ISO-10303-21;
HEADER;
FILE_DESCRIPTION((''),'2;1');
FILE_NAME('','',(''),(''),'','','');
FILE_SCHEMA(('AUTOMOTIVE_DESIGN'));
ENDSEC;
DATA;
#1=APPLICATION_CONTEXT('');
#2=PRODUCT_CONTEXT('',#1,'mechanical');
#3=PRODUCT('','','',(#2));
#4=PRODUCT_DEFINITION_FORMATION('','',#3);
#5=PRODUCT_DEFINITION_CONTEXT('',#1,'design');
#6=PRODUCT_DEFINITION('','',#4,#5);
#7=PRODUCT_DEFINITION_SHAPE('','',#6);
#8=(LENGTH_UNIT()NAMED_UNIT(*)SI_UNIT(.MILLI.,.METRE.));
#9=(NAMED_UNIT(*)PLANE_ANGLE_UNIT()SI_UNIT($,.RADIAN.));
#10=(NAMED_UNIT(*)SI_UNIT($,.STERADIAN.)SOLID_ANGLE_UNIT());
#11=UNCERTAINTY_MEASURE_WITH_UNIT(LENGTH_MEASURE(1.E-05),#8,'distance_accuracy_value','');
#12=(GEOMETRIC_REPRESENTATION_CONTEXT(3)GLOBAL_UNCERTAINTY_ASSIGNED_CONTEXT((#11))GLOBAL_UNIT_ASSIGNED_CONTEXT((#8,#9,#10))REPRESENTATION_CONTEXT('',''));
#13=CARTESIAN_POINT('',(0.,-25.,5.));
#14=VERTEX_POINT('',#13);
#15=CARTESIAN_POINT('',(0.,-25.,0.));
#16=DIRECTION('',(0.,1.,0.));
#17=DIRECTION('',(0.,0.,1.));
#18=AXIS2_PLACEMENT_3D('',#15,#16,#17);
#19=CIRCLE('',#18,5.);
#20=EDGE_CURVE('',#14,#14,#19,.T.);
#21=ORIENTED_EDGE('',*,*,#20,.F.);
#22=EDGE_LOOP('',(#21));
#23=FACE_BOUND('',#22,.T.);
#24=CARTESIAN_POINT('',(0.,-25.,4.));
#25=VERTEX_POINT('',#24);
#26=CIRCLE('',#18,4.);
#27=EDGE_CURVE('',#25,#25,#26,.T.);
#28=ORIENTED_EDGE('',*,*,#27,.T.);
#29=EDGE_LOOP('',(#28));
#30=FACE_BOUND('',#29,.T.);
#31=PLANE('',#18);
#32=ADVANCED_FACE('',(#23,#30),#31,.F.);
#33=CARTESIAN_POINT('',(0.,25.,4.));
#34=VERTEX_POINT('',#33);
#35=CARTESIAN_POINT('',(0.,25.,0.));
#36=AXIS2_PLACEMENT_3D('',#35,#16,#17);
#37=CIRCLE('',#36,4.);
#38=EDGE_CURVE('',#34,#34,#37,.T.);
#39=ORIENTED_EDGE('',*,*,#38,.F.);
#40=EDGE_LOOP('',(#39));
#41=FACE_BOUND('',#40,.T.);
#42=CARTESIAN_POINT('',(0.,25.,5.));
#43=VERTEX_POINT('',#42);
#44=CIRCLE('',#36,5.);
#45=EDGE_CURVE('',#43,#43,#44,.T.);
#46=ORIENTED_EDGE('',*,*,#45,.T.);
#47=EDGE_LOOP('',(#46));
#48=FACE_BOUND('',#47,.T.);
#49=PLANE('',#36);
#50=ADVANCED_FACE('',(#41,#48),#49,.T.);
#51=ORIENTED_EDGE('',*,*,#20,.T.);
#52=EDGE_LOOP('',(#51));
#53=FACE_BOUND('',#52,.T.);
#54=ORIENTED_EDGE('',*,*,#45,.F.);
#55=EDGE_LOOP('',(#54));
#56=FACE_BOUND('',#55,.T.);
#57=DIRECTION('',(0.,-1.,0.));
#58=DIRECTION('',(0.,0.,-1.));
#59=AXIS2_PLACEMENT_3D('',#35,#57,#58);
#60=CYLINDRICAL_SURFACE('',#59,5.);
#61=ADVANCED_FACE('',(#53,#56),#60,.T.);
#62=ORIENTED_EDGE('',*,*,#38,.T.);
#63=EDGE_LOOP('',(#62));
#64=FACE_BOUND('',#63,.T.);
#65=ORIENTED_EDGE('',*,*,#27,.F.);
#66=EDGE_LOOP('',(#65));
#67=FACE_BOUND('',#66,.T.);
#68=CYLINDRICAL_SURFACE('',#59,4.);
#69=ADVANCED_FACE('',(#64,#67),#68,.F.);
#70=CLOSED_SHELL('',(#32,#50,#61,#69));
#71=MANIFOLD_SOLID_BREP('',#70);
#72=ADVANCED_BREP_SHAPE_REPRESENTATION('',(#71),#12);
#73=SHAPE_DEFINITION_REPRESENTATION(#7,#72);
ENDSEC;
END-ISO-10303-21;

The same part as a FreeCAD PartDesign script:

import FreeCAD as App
import Part
import Sketcher
from FreeCAD import Vector

doc = App.newDocument("Part")
body = doc.addObject("PartDesign::Body", "Body")

# Sketch on XZ plane
sketch1 = doc.addObject("Sketcher::SketchObject", "Sketch")
body.addObject(sketch1)
sketch1.AttachmentSupport = (doc.XZ_Plane, [""])
sketch1.MapMode = "FlatFace"
sketch1.addGeometry([
    Part.Circle(Vector(0, 0, 0), Vector(0, 0, 1), 5),
    Part.Circle(Vector(0, 0, 0), Vector(0, 0, 1), 4),
], False)
sketch1.addConstraint([
    Sketcher.Constraint("Coincident", 0, 3, -1, 1),
    Sketcher.Constraint("Coincident", 1, 3, -1, 1),
    Sketcher.Constraint("Diameter", 0, 10.0),
    Sketcher.Constraint("Diameter", 1, 8.0),
])
pad1 = doc.addObject("PartDesign::Pad", "Pad")
body.addObject(pad1)
pad1.Profile = sketch1
pad1.Length = 50
pad1.Midplane = True

doc.recompute()
